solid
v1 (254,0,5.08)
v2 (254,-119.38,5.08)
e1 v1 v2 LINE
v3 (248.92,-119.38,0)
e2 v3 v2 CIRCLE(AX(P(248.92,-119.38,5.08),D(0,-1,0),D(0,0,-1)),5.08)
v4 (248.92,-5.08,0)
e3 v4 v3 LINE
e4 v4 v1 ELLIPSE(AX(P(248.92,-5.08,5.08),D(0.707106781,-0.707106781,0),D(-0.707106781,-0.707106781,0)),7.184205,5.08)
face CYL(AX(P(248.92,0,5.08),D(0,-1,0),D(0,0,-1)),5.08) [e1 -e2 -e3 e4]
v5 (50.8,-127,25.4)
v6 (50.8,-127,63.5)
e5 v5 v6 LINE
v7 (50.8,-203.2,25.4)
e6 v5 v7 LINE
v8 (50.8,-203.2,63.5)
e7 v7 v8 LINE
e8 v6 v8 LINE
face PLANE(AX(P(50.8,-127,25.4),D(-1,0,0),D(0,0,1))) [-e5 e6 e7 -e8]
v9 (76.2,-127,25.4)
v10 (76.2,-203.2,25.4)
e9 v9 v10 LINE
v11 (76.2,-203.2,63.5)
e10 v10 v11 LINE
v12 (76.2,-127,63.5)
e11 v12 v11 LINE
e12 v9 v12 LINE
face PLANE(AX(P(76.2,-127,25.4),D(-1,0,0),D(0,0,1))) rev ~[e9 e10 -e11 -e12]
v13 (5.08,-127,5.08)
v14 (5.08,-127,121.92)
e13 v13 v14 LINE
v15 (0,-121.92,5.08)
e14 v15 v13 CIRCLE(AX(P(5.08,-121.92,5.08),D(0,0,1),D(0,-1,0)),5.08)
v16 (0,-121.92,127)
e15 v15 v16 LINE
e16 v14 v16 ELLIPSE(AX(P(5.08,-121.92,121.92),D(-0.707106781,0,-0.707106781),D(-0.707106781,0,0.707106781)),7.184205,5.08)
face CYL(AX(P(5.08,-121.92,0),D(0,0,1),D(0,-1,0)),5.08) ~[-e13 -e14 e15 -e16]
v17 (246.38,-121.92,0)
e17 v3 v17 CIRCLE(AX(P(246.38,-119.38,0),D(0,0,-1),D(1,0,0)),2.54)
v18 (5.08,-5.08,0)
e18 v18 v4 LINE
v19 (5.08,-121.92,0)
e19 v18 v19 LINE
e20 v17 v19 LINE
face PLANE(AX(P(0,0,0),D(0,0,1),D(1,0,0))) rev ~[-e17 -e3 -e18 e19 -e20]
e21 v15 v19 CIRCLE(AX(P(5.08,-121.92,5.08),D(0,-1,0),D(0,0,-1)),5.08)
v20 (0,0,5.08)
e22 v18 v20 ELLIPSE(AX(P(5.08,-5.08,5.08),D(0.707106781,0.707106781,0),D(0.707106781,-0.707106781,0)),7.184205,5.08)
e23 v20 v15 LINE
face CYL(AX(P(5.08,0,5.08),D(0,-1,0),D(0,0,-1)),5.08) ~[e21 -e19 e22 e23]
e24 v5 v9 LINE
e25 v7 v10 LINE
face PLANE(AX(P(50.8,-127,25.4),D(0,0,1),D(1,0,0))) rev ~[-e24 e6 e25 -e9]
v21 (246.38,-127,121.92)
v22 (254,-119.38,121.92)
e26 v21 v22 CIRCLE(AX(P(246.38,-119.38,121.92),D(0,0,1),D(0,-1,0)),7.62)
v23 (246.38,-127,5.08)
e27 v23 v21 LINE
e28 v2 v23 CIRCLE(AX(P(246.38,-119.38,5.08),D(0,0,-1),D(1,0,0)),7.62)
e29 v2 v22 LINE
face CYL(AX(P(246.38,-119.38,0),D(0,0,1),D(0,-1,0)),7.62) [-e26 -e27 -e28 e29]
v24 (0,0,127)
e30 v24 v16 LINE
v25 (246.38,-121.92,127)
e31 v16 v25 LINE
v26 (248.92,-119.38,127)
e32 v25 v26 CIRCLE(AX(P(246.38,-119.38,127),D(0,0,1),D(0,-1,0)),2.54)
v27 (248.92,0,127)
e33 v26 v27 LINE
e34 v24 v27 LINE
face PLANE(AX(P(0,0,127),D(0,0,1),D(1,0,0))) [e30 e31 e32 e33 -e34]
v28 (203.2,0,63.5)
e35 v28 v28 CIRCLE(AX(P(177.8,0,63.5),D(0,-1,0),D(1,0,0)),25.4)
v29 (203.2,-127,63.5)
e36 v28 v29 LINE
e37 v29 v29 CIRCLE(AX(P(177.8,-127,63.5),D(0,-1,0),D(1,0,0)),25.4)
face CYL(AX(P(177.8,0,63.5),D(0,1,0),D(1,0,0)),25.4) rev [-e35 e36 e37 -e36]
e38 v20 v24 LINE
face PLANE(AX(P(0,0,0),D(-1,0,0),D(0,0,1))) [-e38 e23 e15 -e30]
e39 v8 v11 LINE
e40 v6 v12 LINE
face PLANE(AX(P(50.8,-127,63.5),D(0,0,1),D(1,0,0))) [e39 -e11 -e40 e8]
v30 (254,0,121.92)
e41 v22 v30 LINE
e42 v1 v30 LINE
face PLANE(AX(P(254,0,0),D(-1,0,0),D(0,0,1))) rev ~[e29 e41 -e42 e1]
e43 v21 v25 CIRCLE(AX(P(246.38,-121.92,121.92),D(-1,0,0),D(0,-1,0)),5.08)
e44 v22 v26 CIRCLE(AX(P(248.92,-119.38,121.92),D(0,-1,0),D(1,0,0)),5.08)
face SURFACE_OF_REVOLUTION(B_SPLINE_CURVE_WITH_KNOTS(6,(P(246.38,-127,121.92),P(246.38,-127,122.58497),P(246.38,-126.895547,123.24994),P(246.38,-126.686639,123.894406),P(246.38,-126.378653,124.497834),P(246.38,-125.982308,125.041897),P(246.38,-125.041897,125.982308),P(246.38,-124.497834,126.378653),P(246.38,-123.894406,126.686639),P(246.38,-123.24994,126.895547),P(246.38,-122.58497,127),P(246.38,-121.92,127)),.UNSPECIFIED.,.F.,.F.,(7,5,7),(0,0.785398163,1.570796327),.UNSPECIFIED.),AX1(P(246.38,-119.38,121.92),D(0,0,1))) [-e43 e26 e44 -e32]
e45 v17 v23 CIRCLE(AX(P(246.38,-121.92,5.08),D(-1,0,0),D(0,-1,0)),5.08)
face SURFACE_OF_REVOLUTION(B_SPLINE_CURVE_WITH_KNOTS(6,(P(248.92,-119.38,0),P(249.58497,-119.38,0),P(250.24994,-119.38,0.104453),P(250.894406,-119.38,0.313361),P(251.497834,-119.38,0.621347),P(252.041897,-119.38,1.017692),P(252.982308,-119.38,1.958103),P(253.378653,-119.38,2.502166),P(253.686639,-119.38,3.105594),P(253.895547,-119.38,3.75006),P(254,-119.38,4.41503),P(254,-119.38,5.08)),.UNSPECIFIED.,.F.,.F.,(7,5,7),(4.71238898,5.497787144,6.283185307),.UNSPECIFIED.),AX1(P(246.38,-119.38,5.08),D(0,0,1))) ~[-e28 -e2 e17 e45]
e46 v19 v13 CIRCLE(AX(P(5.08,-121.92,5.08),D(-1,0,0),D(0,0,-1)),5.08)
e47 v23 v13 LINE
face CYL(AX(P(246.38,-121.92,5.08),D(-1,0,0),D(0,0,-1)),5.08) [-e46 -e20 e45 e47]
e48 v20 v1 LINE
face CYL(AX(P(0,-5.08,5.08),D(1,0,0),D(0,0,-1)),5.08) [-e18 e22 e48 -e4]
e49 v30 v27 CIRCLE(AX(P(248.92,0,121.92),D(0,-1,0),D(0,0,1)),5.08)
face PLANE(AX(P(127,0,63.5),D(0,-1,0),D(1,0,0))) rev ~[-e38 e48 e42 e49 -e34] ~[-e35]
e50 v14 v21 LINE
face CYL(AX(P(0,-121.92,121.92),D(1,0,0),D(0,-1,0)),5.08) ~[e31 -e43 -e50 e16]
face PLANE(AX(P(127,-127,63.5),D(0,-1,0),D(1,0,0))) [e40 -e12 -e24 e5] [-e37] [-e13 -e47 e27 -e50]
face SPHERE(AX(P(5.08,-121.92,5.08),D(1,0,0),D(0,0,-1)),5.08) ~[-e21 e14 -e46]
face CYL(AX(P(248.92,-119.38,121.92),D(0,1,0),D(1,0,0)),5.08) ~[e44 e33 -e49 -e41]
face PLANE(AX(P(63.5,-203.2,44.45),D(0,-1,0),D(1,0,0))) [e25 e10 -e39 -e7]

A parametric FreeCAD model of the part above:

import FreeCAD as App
import Part
import Sketcher

V = App.Vector
Q = App.Units.Quantity


def edges_at(feature, points):
    """Names of the edges that pass closest to the given points."""
    edges = feature.Shape.Edges
    near = lambda p: min(range(len(edges)), key=lambda i: edges[i].distToShape(Part.Vertex(*p))[0])
    return sorted({f"Edge{near(p) + 1}" for p in points})

doc = App.newDocument("Part")
params = doc.addObject("Spreadsheet::Sheet", "Params")
for row, (alias, value) in enumerate([
    ("sketch1_diameter", "2 in"),
    ("sketch1_width", "10 in"),
    ("sketch1_height", "5 in"),
    ("pad1_length", "5 in"),
    ("sketch2_width", "1 in"),
    ("sketch2_height", "1.5 in"),
    ("pad2_length", "3 in"),
    ("fillet_radius", "0.3 in"),
    ("fillet2_radius", "0.2 in"),
], start=1):
    params.set(f"A{row}", alias)
    params.set(f"B{row}", "=" + value)
    params.setAlias(f"B{row}", alias)

body = doc.addObject("PartDesign::Body", "Body")

# Sketch on XZ plane
sketch1 = body.newObject("Sketcher::SketchObject", "Sketch")
sketch1.AttachmentSupport = (doc.getObject("XZ_Plane"), [""])
sketch1.MapMode = "FlatFace"
sketch1.addGeometry([
    Part.LineSegment(V(0, 127, 0), V(0, 0, 0)),  # 0
    Part.LineSegment(V(0, 0, 0), V(254, 0, 0)),  # 1
    Part.LineSegment(V(254, 0, 0), V(254, 127, 0)),  # 2
    Part.LineSegment(V(254, 127, 0), V(0, 127, 0)),  # 3
    Part.Circle(V(177.8, 63.5, 0), V(0, 0, 1), 25.4),  # 4
], False)
sketch1.addConstraint([
    Sketcher.Constraint("Coincident", 0, 2, 1, 1),
    Sketcher.Constraint("Coincident", 1, 2, 2, 1),
    Sketcher.Constraint("Coincident", 2, 2, 3, 1),
    Sketcher.Constraint("Coincident", 3, 2, 0, 1),
    Sketcher.Constraint("Vertical", 0),
    Sketcher.Constraint("Horizontal", 1),
    Sketcher.Constraint("Vertical", 2),
    Sketcher.Constraint("Horizontal", 3),
    Sketcher.Constraint("Coincident", 0, 2, -1, 1),
    Sketcher.Constraint("Diameter", 4, Q("2 in")),
    Sketcher.Constraint("DistanceX", 1, 1, 1, 2, Q("10 in")),
    Sketcher.Constraint("DistanceY", 0, 2, 0, 1, Q("5 in")),
    Sketcher.Constraint("DistanceX", -1, 1, 4, 3, Q("7 in")),
    Sketcher.Constraint("DistanceY", -1, 1, 4, 3, Q("2.5 in")),
])
sketch1.setExpression("Constraints[9]", "Params.sketch1_diameter")
sketch1.setExpression("Constraints[10]", "Params.sketch1_width")
sketch1.setExpression("Constraints[11]", "Params.sketch1_height")
pad1 = body.newObject("PartDesign::Pad", "Pad")
pad1.Profile = sketch1
pad1.setExpression("Length", "Params.pad1_length")

# Sketch on XZ plane
sketch2 = body.newObject("Sketcher::SketchObject", "Sketch001")
sketch2.AttachmentSupport = (doc.getObject("XZ_Plane"), [""])
sketch2.MapMode = "FlatFace"
sketch2.AttachmentOffset = App.Placement(V(0, 0, 5 * 25.4), App.Rotation())
sketch2.addGeometry([
    Part.LineSegment(V(50.8, 63.5, 0), V(50.8, 25.4, 0)),
    Part.LineSegment(V(50.8, 25.4, 0), V(76.2, 25.4, 0)),
    Part.LineSegment(V(76.2, 25.4, 0), V(76.2, 63.5, 0)),
    Part.LineSegment(V(76.2, 63.5, 0), V(50.8, 63.5, 0)),
], False)
sketch2.addConstraint([
    Sketcher.Constraint("Coincident", 0, 2, 1, 1),
    Sketcher.Constraint("Coincident", 1, 2, 2, 1),
    Sketcher.Constraint("Coincident", 2, 2, 3, 1),
    Sketcher.Constraint("Coincident", 3, 2, 0, 1),
    Sketcher.Constraint("Vertical", 0),
    Sketcher.Constraint("Horizontal", 1),
    Sketcher.Constraint("Vertical", 2),
    Sketcher.Constraint("Horizontal", 3),
    Sketcher.Constraint("DistanceX", 1, 1, 1, 2, Q("1 in")),
    Sketcher.Constraint("DistanceY", 0, 2, 0, 1, Q("1.5 in")),
    Sketcher.Constraint("DistanceX", -1, 1, 0, 2, Q("2 in")),
    Sketcher.Constraint("DistanceY", -1, 1, 0, 2, Q("1 in")),
])
sketch2.setExpression("Constraints[8]", "Params.sketch2_width")
sketch2.setExpression("Constraints[9]", "Params.sketch2_height")
pad2 = body.newObject("PartDesign::Pad", "Pad001")
pad2.Profile = sketch2
pad2.setExpression("Length", "Params.pad2_length")
doc.recompute()

fillet = body.newObject("PartDesign::Fillet", "Fillet")
fillet.Base = (pad2, edges_at(pad2, [(254, -127, 63.5)]))
fillet.setExpression("Radius", "Params.fillet_radius")
doc.recompute()

fillet2 = body.newObject("PartDesign::Fillet", "Fillet001")
fillet2.Base = (fillet, edges_at(fillet, [
    (254, -59.69, 0),
    (251.768, -124.768, 0),
    (127, 0, 0),
    (123.19, -127, 0),
    (0, -63.5, 0),
    (0, -127, 63.5),
    (123.19, -127, 127),
]))
fillet2.setExpression("Radius", "Params.fillet2_radius")

doc.recompute()
